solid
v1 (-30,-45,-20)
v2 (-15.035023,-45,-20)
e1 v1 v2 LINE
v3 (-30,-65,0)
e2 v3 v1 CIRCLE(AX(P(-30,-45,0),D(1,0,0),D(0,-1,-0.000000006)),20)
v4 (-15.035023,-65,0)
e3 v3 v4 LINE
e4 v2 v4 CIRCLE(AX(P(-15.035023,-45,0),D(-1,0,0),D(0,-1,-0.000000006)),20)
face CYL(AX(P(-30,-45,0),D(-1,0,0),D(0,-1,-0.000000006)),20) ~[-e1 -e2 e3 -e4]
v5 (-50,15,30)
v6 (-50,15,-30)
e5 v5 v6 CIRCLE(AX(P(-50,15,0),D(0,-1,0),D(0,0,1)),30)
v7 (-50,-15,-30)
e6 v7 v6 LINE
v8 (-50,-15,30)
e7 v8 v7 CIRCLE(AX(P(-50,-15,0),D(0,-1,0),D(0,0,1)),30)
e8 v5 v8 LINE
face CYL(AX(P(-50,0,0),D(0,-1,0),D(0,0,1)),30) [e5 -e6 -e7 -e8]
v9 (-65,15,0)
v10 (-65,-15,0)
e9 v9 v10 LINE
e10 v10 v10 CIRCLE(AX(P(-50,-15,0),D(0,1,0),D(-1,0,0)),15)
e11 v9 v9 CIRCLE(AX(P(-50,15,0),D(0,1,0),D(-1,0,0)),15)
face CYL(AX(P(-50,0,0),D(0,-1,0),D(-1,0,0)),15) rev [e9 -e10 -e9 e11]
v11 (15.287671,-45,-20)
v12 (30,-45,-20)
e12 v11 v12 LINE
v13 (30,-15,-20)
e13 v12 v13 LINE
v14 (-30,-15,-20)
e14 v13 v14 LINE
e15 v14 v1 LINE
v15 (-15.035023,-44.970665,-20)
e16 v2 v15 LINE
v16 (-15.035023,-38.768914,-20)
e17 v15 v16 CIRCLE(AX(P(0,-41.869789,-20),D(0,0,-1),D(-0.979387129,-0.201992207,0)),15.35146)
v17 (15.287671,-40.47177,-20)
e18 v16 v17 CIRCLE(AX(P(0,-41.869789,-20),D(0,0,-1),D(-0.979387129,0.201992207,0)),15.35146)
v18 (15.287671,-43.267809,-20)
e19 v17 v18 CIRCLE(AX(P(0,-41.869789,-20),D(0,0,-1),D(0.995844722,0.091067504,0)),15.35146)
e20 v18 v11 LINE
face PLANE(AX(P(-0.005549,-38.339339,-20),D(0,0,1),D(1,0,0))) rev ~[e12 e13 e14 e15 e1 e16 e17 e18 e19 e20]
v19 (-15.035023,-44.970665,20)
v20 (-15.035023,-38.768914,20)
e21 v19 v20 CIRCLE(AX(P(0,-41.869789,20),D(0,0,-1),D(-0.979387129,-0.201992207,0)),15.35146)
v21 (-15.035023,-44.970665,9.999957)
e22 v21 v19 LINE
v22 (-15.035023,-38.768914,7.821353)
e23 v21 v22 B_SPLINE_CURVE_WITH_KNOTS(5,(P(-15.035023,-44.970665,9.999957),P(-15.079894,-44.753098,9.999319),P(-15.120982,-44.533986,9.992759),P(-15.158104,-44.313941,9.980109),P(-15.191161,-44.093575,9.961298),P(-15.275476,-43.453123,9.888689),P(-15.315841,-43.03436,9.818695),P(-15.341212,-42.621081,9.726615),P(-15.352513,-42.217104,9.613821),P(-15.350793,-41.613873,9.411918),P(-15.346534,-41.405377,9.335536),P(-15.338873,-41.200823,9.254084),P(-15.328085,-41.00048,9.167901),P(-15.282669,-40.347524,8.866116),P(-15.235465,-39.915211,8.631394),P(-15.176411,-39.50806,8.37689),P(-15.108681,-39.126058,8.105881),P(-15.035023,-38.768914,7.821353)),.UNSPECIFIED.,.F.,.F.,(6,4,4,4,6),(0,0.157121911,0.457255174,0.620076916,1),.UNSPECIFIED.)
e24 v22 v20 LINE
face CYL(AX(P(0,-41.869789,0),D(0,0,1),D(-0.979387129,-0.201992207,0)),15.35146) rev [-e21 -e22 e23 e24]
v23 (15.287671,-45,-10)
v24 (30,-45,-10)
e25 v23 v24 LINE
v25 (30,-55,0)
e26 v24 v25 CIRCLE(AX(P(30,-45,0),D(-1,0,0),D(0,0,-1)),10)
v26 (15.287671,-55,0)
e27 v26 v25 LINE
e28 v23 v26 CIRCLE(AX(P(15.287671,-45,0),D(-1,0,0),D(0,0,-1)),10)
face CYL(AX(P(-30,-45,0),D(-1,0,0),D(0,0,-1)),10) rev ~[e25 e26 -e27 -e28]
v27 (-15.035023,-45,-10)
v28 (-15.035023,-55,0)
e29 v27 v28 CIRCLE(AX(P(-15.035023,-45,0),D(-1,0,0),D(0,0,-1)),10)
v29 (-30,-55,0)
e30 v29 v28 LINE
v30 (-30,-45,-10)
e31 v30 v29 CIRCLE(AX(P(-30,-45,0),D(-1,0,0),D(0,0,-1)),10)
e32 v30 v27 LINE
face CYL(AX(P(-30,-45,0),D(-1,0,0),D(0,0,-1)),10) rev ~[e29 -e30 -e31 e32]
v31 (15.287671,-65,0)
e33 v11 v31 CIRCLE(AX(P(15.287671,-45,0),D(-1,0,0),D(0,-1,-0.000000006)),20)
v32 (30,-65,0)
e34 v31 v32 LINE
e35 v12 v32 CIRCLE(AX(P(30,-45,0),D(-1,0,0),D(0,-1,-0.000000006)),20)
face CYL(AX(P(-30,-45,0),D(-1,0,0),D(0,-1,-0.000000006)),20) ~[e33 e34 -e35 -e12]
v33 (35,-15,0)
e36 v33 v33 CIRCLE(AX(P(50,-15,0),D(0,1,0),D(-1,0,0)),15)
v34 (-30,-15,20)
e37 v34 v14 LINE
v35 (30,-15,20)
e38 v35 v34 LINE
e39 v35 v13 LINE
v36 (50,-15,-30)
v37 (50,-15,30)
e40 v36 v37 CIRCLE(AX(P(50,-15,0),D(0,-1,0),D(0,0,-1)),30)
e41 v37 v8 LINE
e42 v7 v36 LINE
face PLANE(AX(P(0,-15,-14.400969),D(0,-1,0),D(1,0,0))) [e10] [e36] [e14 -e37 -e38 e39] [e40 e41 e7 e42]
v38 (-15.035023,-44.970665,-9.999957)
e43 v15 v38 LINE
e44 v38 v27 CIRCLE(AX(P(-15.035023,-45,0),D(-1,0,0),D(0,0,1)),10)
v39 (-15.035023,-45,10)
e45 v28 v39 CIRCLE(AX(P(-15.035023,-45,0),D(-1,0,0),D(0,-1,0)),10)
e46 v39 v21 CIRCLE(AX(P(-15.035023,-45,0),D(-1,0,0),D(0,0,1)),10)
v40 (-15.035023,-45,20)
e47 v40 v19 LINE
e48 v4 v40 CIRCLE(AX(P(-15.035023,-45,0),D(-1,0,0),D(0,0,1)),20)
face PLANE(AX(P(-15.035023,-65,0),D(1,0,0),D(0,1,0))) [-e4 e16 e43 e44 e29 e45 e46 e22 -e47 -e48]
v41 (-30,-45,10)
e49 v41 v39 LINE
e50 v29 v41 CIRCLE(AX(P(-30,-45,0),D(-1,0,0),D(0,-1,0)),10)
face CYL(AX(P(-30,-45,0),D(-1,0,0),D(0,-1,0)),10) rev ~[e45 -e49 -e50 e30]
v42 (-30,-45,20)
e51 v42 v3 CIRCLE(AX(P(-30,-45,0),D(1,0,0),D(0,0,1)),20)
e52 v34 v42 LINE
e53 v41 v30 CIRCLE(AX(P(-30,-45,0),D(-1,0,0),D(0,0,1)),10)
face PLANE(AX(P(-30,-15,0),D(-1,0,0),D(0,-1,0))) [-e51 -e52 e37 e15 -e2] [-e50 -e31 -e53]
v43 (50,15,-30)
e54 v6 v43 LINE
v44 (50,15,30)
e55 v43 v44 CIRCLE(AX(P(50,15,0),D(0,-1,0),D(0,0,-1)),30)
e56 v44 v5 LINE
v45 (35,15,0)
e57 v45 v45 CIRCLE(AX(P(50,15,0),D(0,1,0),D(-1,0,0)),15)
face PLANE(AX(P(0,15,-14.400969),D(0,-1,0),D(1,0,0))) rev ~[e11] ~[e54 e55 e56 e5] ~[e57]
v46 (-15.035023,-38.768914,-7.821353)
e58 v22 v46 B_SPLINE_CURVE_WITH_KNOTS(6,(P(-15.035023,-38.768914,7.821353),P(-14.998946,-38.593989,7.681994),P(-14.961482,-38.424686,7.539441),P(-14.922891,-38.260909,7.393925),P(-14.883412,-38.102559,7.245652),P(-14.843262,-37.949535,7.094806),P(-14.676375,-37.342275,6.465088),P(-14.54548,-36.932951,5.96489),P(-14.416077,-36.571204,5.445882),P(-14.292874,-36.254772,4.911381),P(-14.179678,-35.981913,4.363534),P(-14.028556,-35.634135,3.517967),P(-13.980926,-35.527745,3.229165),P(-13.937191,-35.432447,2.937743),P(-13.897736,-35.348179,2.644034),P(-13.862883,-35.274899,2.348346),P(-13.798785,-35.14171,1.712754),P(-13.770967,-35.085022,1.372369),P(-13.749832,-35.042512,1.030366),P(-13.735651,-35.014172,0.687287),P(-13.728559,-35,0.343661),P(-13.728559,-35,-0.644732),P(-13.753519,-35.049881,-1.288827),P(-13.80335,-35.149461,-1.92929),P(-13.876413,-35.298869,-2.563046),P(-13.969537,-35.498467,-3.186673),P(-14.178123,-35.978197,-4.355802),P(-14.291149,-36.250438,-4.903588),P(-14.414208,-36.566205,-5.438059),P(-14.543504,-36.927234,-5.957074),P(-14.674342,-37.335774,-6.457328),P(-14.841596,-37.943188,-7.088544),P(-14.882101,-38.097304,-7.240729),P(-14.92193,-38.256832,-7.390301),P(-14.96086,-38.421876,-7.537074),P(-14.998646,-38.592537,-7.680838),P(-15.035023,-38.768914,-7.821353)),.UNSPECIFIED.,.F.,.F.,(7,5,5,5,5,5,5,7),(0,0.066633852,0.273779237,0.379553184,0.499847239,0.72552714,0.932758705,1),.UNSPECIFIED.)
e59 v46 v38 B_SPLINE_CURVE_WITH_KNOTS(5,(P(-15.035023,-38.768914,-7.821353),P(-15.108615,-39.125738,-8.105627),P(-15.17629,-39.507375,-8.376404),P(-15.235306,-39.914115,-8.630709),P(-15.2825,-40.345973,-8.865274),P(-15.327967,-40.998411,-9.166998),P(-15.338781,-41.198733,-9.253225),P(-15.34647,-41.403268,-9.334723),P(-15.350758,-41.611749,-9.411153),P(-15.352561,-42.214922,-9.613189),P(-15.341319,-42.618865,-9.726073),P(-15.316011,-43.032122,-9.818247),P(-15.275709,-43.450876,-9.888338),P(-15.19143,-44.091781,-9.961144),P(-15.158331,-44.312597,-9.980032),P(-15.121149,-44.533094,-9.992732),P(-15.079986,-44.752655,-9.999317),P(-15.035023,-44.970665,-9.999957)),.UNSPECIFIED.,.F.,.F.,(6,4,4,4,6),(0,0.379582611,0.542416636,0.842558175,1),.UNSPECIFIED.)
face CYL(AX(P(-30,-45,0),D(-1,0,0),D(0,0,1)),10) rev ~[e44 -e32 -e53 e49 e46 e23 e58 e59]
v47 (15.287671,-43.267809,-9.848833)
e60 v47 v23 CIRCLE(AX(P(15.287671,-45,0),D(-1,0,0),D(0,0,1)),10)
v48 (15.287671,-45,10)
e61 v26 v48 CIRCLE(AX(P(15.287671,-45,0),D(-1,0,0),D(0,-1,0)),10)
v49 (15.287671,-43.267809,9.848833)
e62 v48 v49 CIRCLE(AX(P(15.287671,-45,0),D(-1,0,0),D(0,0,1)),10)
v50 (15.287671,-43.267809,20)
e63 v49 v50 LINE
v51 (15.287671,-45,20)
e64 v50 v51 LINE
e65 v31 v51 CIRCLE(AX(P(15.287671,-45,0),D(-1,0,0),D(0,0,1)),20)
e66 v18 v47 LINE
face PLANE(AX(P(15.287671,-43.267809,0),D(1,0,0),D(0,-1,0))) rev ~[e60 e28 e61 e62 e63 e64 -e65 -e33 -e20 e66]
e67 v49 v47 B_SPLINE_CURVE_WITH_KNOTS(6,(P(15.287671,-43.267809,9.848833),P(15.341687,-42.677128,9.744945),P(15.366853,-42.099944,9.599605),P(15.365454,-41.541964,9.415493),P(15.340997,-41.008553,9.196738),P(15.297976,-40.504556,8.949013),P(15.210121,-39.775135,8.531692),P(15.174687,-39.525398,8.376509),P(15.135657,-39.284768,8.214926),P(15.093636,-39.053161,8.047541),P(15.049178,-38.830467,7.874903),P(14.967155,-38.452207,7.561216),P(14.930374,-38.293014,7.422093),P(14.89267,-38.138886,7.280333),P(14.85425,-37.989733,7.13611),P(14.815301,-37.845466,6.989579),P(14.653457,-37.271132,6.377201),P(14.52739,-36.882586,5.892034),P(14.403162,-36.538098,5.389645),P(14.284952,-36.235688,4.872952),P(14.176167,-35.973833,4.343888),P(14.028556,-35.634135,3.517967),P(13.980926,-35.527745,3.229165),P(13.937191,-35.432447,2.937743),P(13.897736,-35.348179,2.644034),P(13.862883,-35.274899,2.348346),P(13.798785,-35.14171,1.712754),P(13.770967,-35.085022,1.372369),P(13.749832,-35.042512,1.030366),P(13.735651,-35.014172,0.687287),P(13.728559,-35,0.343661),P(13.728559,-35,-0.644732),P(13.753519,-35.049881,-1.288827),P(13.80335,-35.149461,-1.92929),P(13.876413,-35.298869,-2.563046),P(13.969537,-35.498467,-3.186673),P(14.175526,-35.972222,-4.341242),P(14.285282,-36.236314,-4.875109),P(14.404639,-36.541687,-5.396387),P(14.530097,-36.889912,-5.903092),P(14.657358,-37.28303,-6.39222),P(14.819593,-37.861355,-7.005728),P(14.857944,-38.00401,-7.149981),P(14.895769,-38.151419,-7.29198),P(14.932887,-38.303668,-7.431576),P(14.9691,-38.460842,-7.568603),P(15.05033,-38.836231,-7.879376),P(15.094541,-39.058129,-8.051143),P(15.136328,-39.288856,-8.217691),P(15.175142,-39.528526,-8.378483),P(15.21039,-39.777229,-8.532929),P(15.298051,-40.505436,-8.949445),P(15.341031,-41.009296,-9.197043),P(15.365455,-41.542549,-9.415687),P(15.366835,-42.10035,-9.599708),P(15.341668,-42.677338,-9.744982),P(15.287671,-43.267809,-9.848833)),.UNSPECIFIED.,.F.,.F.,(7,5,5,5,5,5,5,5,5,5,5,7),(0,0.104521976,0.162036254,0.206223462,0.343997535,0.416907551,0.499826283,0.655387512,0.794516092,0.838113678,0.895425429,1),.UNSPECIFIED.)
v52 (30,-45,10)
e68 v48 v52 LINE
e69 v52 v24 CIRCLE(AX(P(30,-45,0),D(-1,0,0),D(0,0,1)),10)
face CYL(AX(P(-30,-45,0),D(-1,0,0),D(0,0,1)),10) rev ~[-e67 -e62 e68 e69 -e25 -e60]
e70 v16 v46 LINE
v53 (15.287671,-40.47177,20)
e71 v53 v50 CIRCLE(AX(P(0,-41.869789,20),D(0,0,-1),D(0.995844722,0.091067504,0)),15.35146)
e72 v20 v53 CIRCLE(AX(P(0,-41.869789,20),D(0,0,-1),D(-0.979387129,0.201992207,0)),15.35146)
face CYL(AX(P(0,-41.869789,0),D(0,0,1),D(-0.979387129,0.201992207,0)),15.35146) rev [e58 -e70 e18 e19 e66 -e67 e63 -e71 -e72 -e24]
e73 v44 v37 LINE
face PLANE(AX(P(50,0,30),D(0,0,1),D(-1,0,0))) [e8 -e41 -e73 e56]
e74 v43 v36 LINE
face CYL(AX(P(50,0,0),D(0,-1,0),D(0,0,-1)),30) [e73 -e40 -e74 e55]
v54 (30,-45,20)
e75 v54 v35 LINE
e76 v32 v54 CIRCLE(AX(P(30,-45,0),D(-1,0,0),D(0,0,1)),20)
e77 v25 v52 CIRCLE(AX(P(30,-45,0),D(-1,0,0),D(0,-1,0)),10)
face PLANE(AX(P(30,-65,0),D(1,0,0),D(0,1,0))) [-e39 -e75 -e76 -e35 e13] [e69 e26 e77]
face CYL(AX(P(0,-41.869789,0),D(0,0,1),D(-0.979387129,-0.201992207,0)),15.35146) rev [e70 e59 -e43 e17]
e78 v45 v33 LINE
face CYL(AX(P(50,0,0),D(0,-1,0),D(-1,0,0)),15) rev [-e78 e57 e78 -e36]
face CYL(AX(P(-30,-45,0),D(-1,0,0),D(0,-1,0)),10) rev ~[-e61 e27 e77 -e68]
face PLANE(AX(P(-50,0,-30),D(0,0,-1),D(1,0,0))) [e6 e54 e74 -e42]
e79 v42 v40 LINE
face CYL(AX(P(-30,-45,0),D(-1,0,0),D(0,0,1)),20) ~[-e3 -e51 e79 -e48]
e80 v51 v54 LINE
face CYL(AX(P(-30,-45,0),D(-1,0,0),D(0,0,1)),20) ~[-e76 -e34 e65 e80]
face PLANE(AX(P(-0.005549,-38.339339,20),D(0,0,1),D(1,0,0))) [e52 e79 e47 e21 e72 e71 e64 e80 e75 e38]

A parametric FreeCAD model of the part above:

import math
import FreeCAD as App
import Part
import Sketcher
from FreeCAD import Vector
Q = App.Units.Quantity

doc = App.newDocument("Part")
params = doc.addObject("Spreadsheet::Sheet", "Params")
for row, (alias, value) in enumerate([
    ("sketch1_diameter", "30 mm"),
    ("sketch1_radius", "30 mm"),
    ("sketch1_width", "100 mm"),
    ("pad1_length", "30 mm"),
    ("sketch2_width", "60 mm"),
    ("sketch2_height", "50 mm"),
    ("pad2_length", "40 mm"),
    ("sketch3_radius", "20 mm"),
    ("sketch4_radius", "10 mm"),
], start=1):
    params.set(f"A{row}", alias)
    params.set(f"B{row}", "=" + value)
    params.setAlias(f"B{row}", alias)

body = doc.addObject("PartDesign::Body", "Body")

sketch1 = body.newObject("Sketcher::SketchObject", "Sketch")
sketch1.AttachmentSupport = (doc.getObject("XZ_Plane"), [""])
sketch1.MapMode = "FlatFace"
sketch1.addGeometry(Part.LineSegment(Vector(-50, -30, 0), Vector(50, -30, 0)), False)
sketch1.addGeometry(Part.ArcOfCircle(Part.Circle(Vector(50, 0, 0), Vector(0, 0, 1), 30), math.radians(-90), math.radians(90)), False)
sketch1.addGeometry(Part.LineSegment(Vector(50, 30, 0), Vector(-50, 30, 0)), False)
sketch1.addGeometry(Part.ArcOfCircle(Part.Circle(Vector(-50, 0, 0), Vector(0, 0, 1), 30), math.radians(90), math.radians(270)), False)
sketch1.addGeometry(Part.Circle(Vector(-50, 0, 0), Vector(0, 0, 1), 15), False)
sketch1.addGeometry(Part.Circle(Vector(50, 0, 0), Vector(0, 0, 1), 15), False)
sketch1.addConstraint(Sketcher.Constraint("Tangent", 0, 2, 1, 1))
sketch1.addConstraint(Sketcher.Constraint("Tangent", 1, 2, 2, 1))
sketch1.addConstraint(Sketcher.Constraint("Tangent", 2, 2, 3, 1))
sketch1.addConstraint(Sketcher.Constraint("Tangent", 3, 2, 0, 1))
sketch1.addConstraint(Sketcher.Constraint("Horizontal", 0))
sketch1.addConstraint(Sketcher.Constraint("Horizontal", 2))
sketch1.addConstraint(Sketcher.Constraint("Coincident", 4, 3, 3, 3))
sketch1.addConstraint(Sketcher.Constraint("Coincident", 5, 3, 1, 3))
sketch1.addConstraint(Sketcher.Constraint("Equal", 4, 5))
sketch1.addConstraint(Sketcher.Constraint("Symmetric", 1, 3, 3, 3, -1, 1))
sketch1.addConstraint(Sketcher.Constraint("Diameter", 4, Q("30 mm")))
sketch1.addConstraint(Sketcher.Constraint("Radius", 1, Q("30 mm")))
sketch1.addConstraint(Sketcher.Constraint("DistanceX", 0, 1, 0, 2, Q("100 mm")))
sketch1.setExpression("Constraints[10]", "Params.sketch1_diameter")
sketch1.setExpression("Constraints[11]", "Params.sketch1_radius")
sketch1.setExpression("Constraints[12]", "Params.sketch1_width")
pad1 = body.newObject("PartDesign::Pad", "Pad")
pad1.Profile = sketch1
pad1.setExpression("Length", "Params.pad1_length")
pad1.Midplane = True

sketch2 = body.newObject("Sketcher::SketchObject", "Sketch001")
sketch2.AttachmentSupport = (doc.getObject("XY_Plane"), [""])
sketch2.MapMode = "FlatFace"
sketch2.addGeometry(Part.LineSegment(Vector(-30, -15, 0), Vector(-30, -65, 0)), False)
sketch2.addGeometry(Part.LineSegment(Vector(-30, -65, 0), Vector(-15, -65, 0)), False)
sketch2.addGeometry(Part.LineSegment(Vector(-15, -65, 0), Vector(-15, -45, 0)), False)
sketch2.addGeometry(Part.ArcOfCircle(Part.Circle(Vector(0, -41.9, 0), Vector(0, 0, 1), 15.4), math.radians(168), math.radians(192)), False)
sketch2.addGeometry(Part.ArcOfCircle(Part.Circle(Vector(0, -41.9, 0), Vector(0, 0, 1), 15.4), math.radians(5), math.radians(168)), False)
sketch2.addGeometry(Part.ArcOfCircle(Part.Circle(Vector(0, -41.9, 0), Vector(0, 0, 1), 15.4), math.radians(-5.23), math.radians(5.23)), False)
sketch2.addGeometry(Part.LineSegment(Vector(15.3, -43.3, 0), Vector(15.3, -65, 0)), False)
sketch2.addGeometry(Part.LineSegment(Vector(15.3, -65, 0), Vector(30, -65, 0)), False)
sketch2.addGeometry(Part.LineSegment(Vector(30, -65, 0), Vector(30, -15, 0)), False)
sketch2.addGeometry(Part.LineSegment(Vector(30, -15, 0), Vector(-30, -15, 0)), False)
sketch2.addConstraint(Sketcher.Constraint("Coincident", 0, 2, 1, 1))
sketch2.addConstraint(Sketcher.Constraint("Coincident", 1, 2, 2, 1))
sketch2.addConstraint(Sketcher.Constraint("Coincident", 2, 2, 3, 2))
sketch2.addConstraint(Sketcher.Constraint("Tangent", 3, 1, 4, 2))
sketch2.addConstraint(Sketcher.Constraint("Tangent", 4, 1, 5, 2))
sketch2.addConstraint(Sketcher.Constraint("Coincident", 5, 1, 6, 1))
sketch2.addConstraint(Sketcher.Constraint("Coincident", 6, 2, 7, 1))
sketch2.addConstraint(Sketcher.Constraint("Coincident", 7, 2, 8, 1))
sketch2.addConstraint(Sketcher.Constraint("Coincident", 8, 2, 9, 1))
sketch2.addConstraint(Sketcher.Constraint("Coincident", 9, 2, 0, 1))
sketch2.addConstraint(Sketcher.Constraint("Vertical", 0))
sketch2.addConstraint(Sketcher.Constraint("Horizontal", 1))
sketch2.addConstraint(Sketcher.Constraint("Vertical", 2))
sketch2.addConstraint(Sketcher.Constraint("Vertical", 6))
sketch2.addConstraint(Sketcher.Constraint("Horizontal", 7))
sketch2.addConstraint(Sketcher.Constraint("Vertical", 8))
sketch2.addConstraint(Sketcher.Constraint("Horizontal", 9))
sketch2.addConstraint(Sketcher.Constraint("Coincident", 5, 3, 3, 3))
sketch2.addConstraint(Sketcher.Constraint("Symmetric", 0, 2, 7, 2, -2))
sketch2.addConstraint(Sketcher.Constraint("PointOnObject", 3, 3, -2))
sketch2.addConstraint(Sketcher.Constraint("Vertical", 2, 2, 3, 1))
sketch2.addConstraint(Sketcher.Constraint("Vertical", 4, 1, 5, 1))
sketch2.addConstraint(Sketcher.Constraint("DistanceX", 9, 2, 9, 1, Q("60 mm")))
sketch2.addConstraint(Sketcher.Constraint("DistanceY", 0, 2, 0, 1, Q("50 mm")))
sketch2.addConstraint(Sketcher.Constraint("DistanceY", 0, 2, -1, 1, Q("65 mm")))
sketch2.addConstraint(Sketcher.Constraint("Radius", 3, Q("15.35146 mm")))
sketch2.addConstraint(Sketcher.Constraint("DistanceX", 7, 1, 7, 2, Q("14.712329 mm")))
sketch2.addConstraint(Sketcher.Constraint("DistanceY", 6, 2, 6, 1, Q("21.732191 mm")))
sketch2.addConstraint(Sketcher.Constraint("DistanceX", 1, 1, 1, 2, Q("14.964977 mm")))
sketch2.setExpression("Constraints[22]", "Params.sketch2_width")
sketch2.setExpression("Constraints[23]", "Params.sketch2_height")
pad2 = body.newObject("PartDesign::Pad", "Pad001")
pad2.Profile = sketch2
pad2.setExpression("Length", "Params.pad2_length")
pad2.Midplane = True

sketch3 = body.newObject("Sketcher::SketchObject", "Sketch002")
sketch3.AttachmentSupport = (doc.getObject("YZ_Plane"), [""])
sketch3.MapMode = "FlatFace"
sketch3.AttachmentOffset = App.Placement(Vector(0, 0, -30), App.Rotation())
sketch3.addGeometry(Part.LineSegment(Vector(-65, 20, 0), Vector(-45, 20, 0)), False)
sketch3.addGeometry(Part.ArcOfCircle(Part.Circle(Vector(-45, 0, 0), Vector(0, 0, 1), 20), math.radians(90), math.radians(180)), False)
sketch3.addGeometry(Part.LineSegment(Vector(-65, 0, 0), Vector(-65, 20, 0)), False)
sketch3.addGeometry(Part.ArcOfCircle(Part.Circle(Vector(-45, 0, 0), Vector(0, 0, 1), 20), math.radians(-180), math.radians(-90)), False)
sketch3.addGeometry(Part.LineSegment(Vector(-45, -20, 0), Vector(-65, -20, 0)), False)
sketch3.addGeometry(Part.LineSegment(Vector(-65, -20, 0), Vector(-65, 0, 0)), False)
sketch3.addConstraint(Sketcher.Constraint("Tangent", 0, 2, 1, 1))
sketch3.addConstraint(Sketcher.Constraint("Tangent", 1, 2, 2, 1))
sketch3.addConstraint(Sketcher.Constraint("Coincident", 2, 2, 0, 1))
sketch3.addConstraint(Sketcher.Constraint("Tangent", 3, 2, 4, 1))
sketch3.addConstraint(Sketcher.Constraint("Coincident", 4, 2, 5, 1))
sketch3.addConstraint(Sketcher.Constraint("Tangent", 5, 2, 3, 1))
sketch3.addConstraint(Sketcher.Constraint("Horizontal", 0))
sketch3.addConstraint(Sketcher.Constraint("Vertical", 2))
sketch3.addConstraint(Sketcher.Constraint("Horizontal", 4))
sketch3.addConstraint(Sketcher.Constraint("Vertical", 5))
sketch3.addConstraint(Sketcher.Constraint("Coincident", 3, 3, 1, 3))
sketch3.addConstraint(Sketcher.Constraint("Equal", 1, 3))
sketch3.addConstraint(Sketcher.Constraint("PointOnObject", 1, 3, -1))
sketch3.addConstraint(Sketcher.Constraint("Radius", 1, Q("20 mm")))
sketch3.addConstraint(Sketcher.Constraint("DistanceX", 1, 3, -1, 1, Q("45 mm")))
sketch3.setExpression("Constraints[13]", "Params.sketch3_radius")
pocket1 = body.newObject("PartDesign::Pocket", "Pocket")
pocket1.Profile = sketch3
pocket1.Type = "ThroughAll"
pocket1.Reversed = True

sketch4 = body.newObject("Sketcher::SketchObject", "Sketch003")
sketch4.AttachmentSupport = (doc.getObject("YZ_Plane"), [""])
sketch4.MapMode = "FlatFace"
sketch4.AttachmentOffset = App.Placement(Vector(0, 0, -30), App.Rotation())
sketch4.addGeometry(Part.ArcOfCircle(Part.Circle(Vector(-45, 0, 0), Vector(0, 0, 1), 10), math.radians(90), math.radians(180)), False)
sketch4.addGeometry(Part.ArcOfCircle(Part.Circle(Vector(-45, 0, 0), Vector(0, 0, 1), 10), math.radians(-90), math.radians(90)), False)
sketch4.addGeometry(Part.ArcOfCircle(Part.Circle(Vector(-45, 0, 0), Vector(0, 0, 1), 10), math.radians(180), math.radians(270)), False)
sketch4.addConstraint(Sketcher.Constraint("Tangent", 0, 1, 1, 2))
sketch4.addConstraint(Sketcher.Constraint("Tangent", 1, 1, 2, 2))
sketch4.addConstraint(Sketcher.Constraint("Tangent", 2, 1, 0, 2))
sketch4.addConstraint(Sketcher.Constraint("Symmetric", 0, 1, 1, 1, -1))
sketch4.addConstraint(Sketcher.Constraint("PointOnObject", 2, 1, -1))
sketch4.addConstraint(Sketcher.Constraint("Vertical", 2, 3, 0, 1))
sketch4.addConstraint(Sketcher.Constraint("Radius", 0, Q("10 mm")))
sketch4.addConstraint(Sketcher.Constraint("DistanceX", 0, 3, -1, 1, Q("45 mm")))
sketch4.setExpression("Constraints[6]", "Params.sketch4_radius")
pocket2 = body.newObject("PartDesign::Pocket", "Pocket001")
pocket2.Profile = sketch4
pocket2.Type = "ThroughAll"
pocket2.Reversed = True

doc.recompute()
